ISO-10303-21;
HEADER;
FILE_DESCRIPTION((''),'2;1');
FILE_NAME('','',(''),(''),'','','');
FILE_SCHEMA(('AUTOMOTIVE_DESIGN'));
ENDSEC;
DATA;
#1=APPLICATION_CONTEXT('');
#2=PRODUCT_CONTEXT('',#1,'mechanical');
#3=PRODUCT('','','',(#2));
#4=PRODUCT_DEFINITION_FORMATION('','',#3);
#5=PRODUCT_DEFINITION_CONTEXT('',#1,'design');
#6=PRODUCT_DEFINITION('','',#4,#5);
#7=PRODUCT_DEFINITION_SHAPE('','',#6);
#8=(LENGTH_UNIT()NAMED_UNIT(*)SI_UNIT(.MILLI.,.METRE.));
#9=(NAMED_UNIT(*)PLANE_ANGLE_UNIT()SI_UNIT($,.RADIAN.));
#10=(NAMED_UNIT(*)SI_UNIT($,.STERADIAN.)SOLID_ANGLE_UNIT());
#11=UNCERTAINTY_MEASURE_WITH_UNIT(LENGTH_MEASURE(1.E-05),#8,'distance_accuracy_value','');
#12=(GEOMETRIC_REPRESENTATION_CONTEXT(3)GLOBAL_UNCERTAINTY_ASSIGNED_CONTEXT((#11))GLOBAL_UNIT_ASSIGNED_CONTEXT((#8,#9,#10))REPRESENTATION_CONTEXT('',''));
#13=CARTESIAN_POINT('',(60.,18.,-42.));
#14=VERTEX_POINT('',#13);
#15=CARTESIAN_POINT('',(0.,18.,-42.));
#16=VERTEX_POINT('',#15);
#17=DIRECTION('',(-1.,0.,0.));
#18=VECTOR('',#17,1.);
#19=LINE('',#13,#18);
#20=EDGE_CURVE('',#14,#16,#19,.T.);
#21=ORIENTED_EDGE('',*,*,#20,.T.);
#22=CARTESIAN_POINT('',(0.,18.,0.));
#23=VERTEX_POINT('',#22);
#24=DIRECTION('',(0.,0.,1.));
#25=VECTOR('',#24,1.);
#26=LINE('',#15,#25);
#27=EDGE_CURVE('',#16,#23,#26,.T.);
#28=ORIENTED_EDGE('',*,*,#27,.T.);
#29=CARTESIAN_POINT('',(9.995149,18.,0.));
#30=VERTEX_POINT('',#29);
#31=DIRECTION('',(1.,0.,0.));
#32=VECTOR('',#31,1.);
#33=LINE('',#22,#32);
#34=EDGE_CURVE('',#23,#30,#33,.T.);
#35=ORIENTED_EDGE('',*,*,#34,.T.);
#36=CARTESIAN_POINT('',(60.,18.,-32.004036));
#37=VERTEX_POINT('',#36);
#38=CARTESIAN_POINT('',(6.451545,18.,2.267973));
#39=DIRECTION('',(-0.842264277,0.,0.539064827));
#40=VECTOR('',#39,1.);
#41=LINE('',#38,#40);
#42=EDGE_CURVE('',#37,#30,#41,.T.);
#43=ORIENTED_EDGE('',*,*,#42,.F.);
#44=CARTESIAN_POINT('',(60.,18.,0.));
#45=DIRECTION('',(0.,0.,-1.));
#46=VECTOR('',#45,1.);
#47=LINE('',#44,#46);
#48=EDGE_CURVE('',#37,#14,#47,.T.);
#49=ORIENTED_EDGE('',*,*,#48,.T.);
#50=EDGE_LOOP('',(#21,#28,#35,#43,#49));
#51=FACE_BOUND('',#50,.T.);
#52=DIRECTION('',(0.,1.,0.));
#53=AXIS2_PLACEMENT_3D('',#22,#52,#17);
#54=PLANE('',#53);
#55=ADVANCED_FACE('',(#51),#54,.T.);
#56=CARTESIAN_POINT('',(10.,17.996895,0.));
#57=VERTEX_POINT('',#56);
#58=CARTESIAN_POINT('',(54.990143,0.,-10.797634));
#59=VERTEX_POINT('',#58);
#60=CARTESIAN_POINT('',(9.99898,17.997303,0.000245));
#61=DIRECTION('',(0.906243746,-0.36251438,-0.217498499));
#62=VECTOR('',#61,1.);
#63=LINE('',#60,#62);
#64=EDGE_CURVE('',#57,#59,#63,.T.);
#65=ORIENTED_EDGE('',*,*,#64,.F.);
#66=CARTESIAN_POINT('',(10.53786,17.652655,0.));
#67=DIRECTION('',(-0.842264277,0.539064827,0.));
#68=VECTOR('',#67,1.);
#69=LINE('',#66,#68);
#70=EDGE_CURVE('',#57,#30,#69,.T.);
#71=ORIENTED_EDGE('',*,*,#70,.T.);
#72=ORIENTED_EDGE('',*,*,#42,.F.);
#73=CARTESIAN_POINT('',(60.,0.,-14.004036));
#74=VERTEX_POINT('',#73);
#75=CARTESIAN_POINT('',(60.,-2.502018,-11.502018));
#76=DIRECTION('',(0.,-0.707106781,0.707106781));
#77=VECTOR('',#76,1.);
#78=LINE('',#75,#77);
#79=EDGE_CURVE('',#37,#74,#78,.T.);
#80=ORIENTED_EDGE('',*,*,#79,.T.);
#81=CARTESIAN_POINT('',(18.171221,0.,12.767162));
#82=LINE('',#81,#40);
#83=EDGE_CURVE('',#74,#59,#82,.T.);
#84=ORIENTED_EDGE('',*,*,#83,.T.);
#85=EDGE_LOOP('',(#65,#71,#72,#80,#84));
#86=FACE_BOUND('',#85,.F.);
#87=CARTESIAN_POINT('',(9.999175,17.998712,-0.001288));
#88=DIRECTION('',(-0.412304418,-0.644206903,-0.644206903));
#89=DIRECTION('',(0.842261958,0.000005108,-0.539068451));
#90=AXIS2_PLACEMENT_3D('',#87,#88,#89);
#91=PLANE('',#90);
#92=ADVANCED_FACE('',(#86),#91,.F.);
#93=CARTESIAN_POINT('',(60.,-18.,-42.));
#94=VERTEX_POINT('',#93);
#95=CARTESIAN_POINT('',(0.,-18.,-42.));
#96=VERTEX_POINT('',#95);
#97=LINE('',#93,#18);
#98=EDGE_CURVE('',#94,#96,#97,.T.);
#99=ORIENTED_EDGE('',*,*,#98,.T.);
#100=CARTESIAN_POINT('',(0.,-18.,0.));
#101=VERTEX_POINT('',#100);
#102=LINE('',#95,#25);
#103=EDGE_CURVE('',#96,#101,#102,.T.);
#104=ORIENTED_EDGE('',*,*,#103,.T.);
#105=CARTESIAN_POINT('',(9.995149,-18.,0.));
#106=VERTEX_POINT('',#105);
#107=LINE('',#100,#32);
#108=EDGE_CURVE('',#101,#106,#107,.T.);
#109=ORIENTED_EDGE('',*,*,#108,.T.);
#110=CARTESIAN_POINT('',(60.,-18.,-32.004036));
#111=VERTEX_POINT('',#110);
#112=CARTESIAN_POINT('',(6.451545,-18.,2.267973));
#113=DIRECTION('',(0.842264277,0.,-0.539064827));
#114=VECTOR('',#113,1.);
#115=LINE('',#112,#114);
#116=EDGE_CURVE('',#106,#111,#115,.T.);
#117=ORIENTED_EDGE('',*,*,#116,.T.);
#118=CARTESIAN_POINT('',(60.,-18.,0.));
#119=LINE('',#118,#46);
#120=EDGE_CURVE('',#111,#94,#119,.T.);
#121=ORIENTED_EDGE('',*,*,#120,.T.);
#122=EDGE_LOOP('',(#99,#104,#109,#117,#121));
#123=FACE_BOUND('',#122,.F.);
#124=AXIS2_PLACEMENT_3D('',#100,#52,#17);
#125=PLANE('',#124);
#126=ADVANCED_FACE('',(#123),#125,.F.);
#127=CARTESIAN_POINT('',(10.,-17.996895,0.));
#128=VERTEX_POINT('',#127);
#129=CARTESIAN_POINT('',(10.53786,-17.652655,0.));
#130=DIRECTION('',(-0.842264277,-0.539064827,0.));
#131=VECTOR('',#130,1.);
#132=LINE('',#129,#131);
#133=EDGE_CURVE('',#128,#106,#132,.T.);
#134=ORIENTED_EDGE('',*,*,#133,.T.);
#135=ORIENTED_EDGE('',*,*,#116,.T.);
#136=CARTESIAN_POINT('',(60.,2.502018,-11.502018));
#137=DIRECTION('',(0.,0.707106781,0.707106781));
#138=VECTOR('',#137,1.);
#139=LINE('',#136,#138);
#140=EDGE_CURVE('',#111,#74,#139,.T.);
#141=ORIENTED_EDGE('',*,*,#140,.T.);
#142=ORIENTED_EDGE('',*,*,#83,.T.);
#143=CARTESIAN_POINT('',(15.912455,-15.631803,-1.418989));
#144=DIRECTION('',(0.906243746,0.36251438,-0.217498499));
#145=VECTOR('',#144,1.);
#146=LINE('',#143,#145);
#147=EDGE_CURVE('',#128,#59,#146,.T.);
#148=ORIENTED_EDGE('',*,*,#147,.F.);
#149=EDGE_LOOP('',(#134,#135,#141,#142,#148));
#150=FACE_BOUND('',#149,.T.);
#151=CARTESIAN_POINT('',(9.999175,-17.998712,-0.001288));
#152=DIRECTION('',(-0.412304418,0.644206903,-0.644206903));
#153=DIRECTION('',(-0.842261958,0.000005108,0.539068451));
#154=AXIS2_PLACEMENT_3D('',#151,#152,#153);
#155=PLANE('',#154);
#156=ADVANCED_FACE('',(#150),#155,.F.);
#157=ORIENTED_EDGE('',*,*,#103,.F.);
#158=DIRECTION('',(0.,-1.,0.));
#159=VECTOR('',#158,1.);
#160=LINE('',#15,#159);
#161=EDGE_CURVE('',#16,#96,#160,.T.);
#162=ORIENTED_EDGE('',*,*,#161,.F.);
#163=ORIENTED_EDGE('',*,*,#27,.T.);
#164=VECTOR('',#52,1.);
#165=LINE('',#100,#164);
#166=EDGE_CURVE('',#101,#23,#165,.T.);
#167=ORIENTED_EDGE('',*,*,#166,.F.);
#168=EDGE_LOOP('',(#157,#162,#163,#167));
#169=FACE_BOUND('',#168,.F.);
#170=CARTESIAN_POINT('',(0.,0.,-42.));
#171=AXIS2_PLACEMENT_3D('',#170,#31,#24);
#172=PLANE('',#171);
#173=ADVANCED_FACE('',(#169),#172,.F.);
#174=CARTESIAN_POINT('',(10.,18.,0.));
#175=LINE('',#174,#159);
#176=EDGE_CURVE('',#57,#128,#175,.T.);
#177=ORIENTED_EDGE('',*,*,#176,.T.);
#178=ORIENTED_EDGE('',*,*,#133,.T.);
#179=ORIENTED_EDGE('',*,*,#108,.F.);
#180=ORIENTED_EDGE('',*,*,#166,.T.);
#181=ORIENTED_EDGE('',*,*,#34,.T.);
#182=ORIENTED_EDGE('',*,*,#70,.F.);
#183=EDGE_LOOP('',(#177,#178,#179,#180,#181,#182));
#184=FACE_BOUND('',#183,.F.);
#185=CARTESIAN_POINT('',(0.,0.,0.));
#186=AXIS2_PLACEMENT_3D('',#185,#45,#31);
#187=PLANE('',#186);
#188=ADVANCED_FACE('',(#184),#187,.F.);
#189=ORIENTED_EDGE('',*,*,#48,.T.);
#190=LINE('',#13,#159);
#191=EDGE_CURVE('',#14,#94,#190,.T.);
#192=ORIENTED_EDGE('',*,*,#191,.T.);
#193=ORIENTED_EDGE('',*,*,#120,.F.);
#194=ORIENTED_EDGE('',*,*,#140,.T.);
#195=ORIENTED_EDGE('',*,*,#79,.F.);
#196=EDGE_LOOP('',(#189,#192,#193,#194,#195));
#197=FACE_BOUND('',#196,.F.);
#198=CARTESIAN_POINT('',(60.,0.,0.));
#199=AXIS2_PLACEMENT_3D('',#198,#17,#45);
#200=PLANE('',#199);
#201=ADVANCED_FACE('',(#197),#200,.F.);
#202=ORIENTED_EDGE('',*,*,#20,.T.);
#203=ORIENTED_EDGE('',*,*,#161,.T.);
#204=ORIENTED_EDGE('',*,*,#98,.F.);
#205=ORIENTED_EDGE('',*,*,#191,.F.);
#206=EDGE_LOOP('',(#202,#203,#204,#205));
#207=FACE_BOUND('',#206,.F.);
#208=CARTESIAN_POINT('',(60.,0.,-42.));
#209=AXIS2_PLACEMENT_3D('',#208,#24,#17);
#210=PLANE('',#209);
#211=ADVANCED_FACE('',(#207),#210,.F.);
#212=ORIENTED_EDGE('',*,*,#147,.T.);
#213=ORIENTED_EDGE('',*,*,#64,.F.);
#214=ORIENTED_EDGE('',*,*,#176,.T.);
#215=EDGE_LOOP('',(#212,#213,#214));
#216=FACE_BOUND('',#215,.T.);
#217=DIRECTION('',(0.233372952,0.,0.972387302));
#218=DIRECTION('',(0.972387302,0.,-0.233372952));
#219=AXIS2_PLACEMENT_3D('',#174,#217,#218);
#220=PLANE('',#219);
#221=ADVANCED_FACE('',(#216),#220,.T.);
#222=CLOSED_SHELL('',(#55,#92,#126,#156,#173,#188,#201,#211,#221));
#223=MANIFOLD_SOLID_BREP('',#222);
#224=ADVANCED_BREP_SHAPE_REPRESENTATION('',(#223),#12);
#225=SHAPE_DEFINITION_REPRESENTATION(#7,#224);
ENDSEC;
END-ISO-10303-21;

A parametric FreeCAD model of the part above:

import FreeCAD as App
import Part
import Sketcher

V = App.Vector
Q = App.Units.Quantity

doc = App.newDocument("Part")
body = doc.addObject("PartDesign::Body", "Body")

sketch1 = body.newObject("Sketcher::SketchObject", "Sketch")
sketch1.AttachmentSupport = (doc.getObject("XZ_Plane"), [""])
sketch1.MapMode = "FlatFace"
sketch1.addGeometry([
    Part.LineSegment(V(0, -42, 0), V(0, 0, 0)),
    Part.LineSegment(V(0, 0, 0), V(60, 0, 0)),
    Part.LineSegment(V(60, 0, 0), V(60, -42, 0)),
    Part.LineSegment(V(60, -42, 0), V(0, -42, 0)),
], False)
sketch1.addConstraint([
    Sketcher.Constraint("Coincident", 0, 2, 1, 1),
    Sketcher.Constraint("Coincident", 1, 2, 2, 1),
    Sketcher.Constraint("Coincident", 2, 2, 3, 1),
    Sketcher.Constraint("Coincident", 3, 2, 0, 1),
    Sketcher.Constraint("Vertical", 0),
    Sketcher.Constraint("Horizontal", 1),
    Sketcher.Constraint("Vertical", 2),
    Sketcher.Constraint("Horizontal", 3),
    Sketcher.Constraint("Coincident", 0, 2, -1, 1),
    Sketcher.Constraint("DistanceX", 1, 1, 1, 2, Q("60 mm")),
    Sketcher.Constraint("DistanceY", 0, 1, 0, 2, Q("42 mm")),
])
pad1 = body.newObject("PartDesign::Pad", "Pad")
pad1.Profile = sketch1
pad1.Length = 36
pad1.Midplane = True

sketch2 = body.newObject("Sketcher::SketchObject", "Sketch001")
sketch2.AttachmentSupport = (doc.getObject("XZ_Plane"), [""])
sketch2.MapMode = "FlatFace"
sketch2.AttachmentOffset = App.Placement(V(0, 0, -18), App.Rotation())
sketch2.addGeometry([
    Part.LineSegment(V(60, -12, 0), V(10, 0, 0)),
    Part.LineSegment(V(10, 0, 0), V(60, 0, 0)),
    Part.LineSegment(V(60, 0, 0), V(60, -12, 0)),
], False)
sketch2.addConstraint([
    Sketcher.Constraint("Coincident", 0, 2, 1, 1),
    Sketcher.Constraint("Coincident", 1, 2, 2, 1),
    Sketcher.Constraint("Coincident", 2, 2, 0, 1),
    Sketcher.Constraint("Horizontal", 1),
    Sketcher.Constraint("Vertical", 2),
    Sketcher.Constraint("PointOnObject", 0, 2, -1),
    Sketcher.Constraint("DistanceX", -1, 1, 0, 2, Q("10 mm")),
    Sketcher.Constraint("DistanceX", 1, 1, 1, 2, Q("50 mm")),
    Sketcher.Constraint("DistanceY", 2, 2, 2, 1, Q("12 mm")),
])
pocket1 = body.newObject("PartDesign::Pocket", "Pocket")
pocket1.Profile = sketch2
pocket1.Length = 40
pocket1.Reversed = True

sketch3 = body.newObject("Sketcher::SketchObject", "Sketch002")
sketch3.Placement = App.Placement(V(10, 18, 0), App.Rotation(V(0.842261958, 0.000005108, -0.539068451), V(0.347274908, -0.764851271, 0.542588861), V(-0.412304418, -0.644206903, -0.644206903), "ZXY"))
sketch3.addGeometry([
    Part.LineSegment(V(-15, 29, 0), V(-15, -12, 0)),
    Part.LineSegment(V(-15, -12, 0), V(94, -12, 0)),
    Part.LineSegment(V(94, -12, 0), V(94, 29, 0)),
    Part.LineSegment(V(94, 29, 0), V(-15, 29, 0)),
], False)
sketch3.addConstraint([
    Sketcher.Constraint("Coincident", 0, 2, 1, 1),
    Sketcher.Constraint("Coincident", 1, 2, 2, 1),
    Sketcher.Constraint("Coincident", 2, 2, 3, 1),
    Sketcher.Constraint("Coincident", 3, 2, 0, 1),
    Sketcher.Constraint("Vertical", 0),
    Sketcher.Constraint("Horizontal", 1),
    Sketcher.Constraint("Vertical", 2),
    Sketcher.Constraint("Horizontal", 3),
    Sketcher.Constraint("DistanceX", 1, 1, 1, 2, Q("108.8713 mm")),
    Sketcher.Constraint("DistanceY", 0, 2, 0, 1, Q("41.1384 mm")),
    Sketcher.Constraint("DistanceX", -1, 1, 1, 2, Q("93.717 mm")),
    Sketcher.Constraint("DistanceY", 0, 2, -1, 1, Q("12.3218 mm")),
])
pocket2 = body.newObject("PartDesign::Pocket", "Pocket001")
pocket2.Profile = sketch3
pocket2.Length = 40
doc.recompute()

mirrored = body.newObject("PartDesign::Mirrored", "Mirrored")
mirrored.Originals = [pocket2]
mirrored.MirrorPlane = (doc.getObject("XZ_Plane"), [""])
body.Tip = mirrored

doc.recompute()
